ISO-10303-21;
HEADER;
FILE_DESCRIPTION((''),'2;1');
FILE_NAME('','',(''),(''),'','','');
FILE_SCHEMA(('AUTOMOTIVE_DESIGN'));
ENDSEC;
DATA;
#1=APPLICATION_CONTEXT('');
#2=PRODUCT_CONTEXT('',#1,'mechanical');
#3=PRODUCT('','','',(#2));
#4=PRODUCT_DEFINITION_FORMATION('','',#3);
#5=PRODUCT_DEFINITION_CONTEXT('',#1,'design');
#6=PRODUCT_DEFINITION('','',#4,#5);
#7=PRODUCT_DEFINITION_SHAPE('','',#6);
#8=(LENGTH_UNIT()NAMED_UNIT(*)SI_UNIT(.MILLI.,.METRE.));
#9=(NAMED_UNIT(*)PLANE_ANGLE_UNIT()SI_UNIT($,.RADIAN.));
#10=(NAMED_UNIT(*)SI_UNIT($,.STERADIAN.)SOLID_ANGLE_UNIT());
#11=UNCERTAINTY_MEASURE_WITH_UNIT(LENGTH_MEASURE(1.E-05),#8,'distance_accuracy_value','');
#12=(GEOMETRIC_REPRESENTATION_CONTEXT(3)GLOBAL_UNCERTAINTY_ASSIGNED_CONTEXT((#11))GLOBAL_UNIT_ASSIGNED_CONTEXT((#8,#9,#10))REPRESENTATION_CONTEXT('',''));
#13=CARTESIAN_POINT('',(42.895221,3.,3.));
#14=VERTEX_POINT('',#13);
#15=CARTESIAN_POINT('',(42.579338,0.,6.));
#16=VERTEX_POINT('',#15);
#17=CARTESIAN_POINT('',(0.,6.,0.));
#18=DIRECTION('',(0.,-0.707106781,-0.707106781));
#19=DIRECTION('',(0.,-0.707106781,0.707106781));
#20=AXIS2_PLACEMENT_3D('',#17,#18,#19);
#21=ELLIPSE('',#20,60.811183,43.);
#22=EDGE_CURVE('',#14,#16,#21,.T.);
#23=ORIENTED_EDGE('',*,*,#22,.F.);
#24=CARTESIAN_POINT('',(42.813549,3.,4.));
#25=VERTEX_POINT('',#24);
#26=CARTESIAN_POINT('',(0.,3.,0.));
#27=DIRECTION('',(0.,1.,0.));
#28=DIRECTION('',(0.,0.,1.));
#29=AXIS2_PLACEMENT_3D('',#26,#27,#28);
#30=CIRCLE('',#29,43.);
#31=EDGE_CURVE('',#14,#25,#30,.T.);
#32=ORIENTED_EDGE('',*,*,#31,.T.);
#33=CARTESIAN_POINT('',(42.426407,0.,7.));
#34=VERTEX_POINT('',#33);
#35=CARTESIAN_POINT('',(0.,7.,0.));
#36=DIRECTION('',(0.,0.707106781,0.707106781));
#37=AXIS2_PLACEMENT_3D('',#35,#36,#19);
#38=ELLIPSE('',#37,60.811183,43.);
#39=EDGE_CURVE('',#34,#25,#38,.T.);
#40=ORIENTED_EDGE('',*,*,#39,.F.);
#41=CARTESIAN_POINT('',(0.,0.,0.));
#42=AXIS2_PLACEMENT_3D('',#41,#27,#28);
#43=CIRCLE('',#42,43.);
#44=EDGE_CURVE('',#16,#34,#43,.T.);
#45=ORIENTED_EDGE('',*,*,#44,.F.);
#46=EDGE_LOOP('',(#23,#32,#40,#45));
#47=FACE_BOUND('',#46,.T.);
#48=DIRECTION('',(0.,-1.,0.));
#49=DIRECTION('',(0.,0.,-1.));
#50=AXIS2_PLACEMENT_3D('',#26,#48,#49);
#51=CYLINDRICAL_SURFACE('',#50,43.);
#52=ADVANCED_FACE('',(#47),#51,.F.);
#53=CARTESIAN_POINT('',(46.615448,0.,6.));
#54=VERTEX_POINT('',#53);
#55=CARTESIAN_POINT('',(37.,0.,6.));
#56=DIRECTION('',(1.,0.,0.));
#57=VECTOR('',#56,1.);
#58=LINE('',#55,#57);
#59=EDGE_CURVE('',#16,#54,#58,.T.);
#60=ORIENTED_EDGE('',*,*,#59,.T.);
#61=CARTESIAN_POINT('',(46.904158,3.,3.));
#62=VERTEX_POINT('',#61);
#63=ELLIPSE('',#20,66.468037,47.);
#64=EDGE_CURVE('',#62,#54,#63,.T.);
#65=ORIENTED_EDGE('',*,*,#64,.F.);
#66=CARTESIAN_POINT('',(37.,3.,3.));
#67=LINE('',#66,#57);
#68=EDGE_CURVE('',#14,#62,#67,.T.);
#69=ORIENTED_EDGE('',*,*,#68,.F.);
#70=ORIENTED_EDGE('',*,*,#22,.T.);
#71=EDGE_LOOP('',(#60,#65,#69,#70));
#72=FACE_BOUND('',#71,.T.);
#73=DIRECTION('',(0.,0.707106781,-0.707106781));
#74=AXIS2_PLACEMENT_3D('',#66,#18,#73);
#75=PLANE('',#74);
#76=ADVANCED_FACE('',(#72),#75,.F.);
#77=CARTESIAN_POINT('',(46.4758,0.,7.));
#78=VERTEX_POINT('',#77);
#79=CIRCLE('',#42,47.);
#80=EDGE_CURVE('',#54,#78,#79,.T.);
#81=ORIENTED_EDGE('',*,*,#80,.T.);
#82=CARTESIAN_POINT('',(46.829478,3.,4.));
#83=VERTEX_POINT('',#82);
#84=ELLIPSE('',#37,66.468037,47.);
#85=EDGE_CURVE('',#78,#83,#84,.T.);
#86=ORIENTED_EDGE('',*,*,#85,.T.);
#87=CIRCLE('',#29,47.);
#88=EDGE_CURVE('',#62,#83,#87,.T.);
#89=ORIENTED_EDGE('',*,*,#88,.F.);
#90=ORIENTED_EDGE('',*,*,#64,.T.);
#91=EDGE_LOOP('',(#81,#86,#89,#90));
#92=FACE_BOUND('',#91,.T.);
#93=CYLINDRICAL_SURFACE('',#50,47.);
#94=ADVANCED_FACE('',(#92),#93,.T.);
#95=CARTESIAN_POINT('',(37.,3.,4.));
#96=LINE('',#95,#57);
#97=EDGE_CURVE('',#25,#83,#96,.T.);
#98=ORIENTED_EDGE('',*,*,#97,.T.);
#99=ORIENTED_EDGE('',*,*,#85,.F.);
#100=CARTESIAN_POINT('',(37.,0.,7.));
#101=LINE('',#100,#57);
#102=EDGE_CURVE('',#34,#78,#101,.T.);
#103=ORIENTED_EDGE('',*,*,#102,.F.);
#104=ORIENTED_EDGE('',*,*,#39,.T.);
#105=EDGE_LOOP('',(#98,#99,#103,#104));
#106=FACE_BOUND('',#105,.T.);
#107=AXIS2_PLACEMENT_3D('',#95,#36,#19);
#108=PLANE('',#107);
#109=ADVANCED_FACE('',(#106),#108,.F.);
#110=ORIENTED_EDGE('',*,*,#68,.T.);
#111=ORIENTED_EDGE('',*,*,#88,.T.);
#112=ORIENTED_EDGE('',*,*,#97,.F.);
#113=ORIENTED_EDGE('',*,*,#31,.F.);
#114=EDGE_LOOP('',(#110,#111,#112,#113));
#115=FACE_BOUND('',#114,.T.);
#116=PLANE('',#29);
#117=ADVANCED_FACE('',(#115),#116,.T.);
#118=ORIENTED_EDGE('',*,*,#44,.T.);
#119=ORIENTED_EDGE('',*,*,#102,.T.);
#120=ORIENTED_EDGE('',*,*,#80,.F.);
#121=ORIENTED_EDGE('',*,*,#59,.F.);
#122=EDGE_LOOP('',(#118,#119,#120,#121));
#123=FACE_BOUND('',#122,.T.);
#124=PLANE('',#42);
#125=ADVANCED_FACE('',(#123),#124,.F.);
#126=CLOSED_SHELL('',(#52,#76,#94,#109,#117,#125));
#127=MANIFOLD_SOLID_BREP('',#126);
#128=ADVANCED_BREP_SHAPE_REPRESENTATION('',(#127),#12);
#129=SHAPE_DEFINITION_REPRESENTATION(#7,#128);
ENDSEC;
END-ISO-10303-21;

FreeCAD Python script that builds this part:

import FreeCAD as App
import Part
import Sketcher
from FreeCAD import Vector
Q = App.Units.Quantity

doc = App.newDocument("Part")
body = doc.addObject("PartDesign::Body", "Body")

# Sketch on XZ plane
sketch1 = body.newObject("Sketcher::SketchObject", "Sketch")
sketch1.AttachmentSupport = (doc.getObject("XZ_Plane"), [""])
sketch1.MapMode = "FlatFace"
sketch1.addGeometry([
    Part.Circle(Vector(0, 0, 0), Vector(0, 0, 1), 47),
    Part.Circle(Vector(0, 0, 0), Vector(0, 0, 1), 43),
], False)
sketch1.addConstraint([
    Sketcher.Constraint("Coincident", 0, 3, -1, 1),
    Sketcher.Constraint("Coincident", 1, 3, -1, 1),
    Sketcher.Constraint("Diameter", 0, 94.0),
    Sketcher.Constraint("Diameter", 1, 86.0),
])
pad1 = body.newObject("PartDesign::Pad", "Pad")
pad1.Profile = sketch1
pad1.Length = 3
pad1.Reversed = True

# Sketch on YZ plane
sketch2 = body.newObject("Sketcher::SketchObject", "Sketch001")
sketch2.AttachmentSupport = (doc.getObject("YZ_Plane"), [""])
sketch2.MapMode = "FlatFace"
sketch2.AttachmentOffset = App.Placement(Vector(0, 0, 47), App.Rotation())
sketch2.addGeometry([
    Part.LineSegment(Vector(3, 4, 0), Vector(0, 7, 0)),
    Part.LineSegment(Vector(0, 7, 0), Vector(0, 6, 0)),
    Part.LineSegment(Vector(0, 6, 0), Vector(3, 3, 0)),
    Part.LineSegment(Vector(3, 3, 0), Vector(3, 4, 0)),
], False)
sketch2.addConstraint([
    Sketcher.Constraint("Coincident", 0, 2, 1, 1),
    Sketcher.Constraint("Coincident", 1, 2, 2, 1),
    Sketcher.Constraint("Coincident", 2, 2, 3, 1),
    Sketcher.Constraint("Coincident", 3, 2, 0, 1),
    Sketcher.Constraint("Vertical", 1),
    Sketcher.Constraint("Vertical", 3),
    Sketcher.Constraint("PointOnObject", 0, 2, -2),
    Sketcher.Constraint("Parallel", 0, 2),
    Sketcher.Constraint("DistanceY", 1, 2, 1, 1, 1.0),
    Sketcher.Constraint("Angle", 0, Q("135 deg")),
    Sketcher.Constraint("DistanceY", -1, 1, 0, 2, 7.0),
    Sketcher.Constraint("DistanceX", -1, 1, 2, 2, 3.0),
])
pocket1 = body.newObject("PartDesign::Pocket", "Pocket")
pocket1.Profile = sketch2
pocket1.Length = 10

doc.recompute()
